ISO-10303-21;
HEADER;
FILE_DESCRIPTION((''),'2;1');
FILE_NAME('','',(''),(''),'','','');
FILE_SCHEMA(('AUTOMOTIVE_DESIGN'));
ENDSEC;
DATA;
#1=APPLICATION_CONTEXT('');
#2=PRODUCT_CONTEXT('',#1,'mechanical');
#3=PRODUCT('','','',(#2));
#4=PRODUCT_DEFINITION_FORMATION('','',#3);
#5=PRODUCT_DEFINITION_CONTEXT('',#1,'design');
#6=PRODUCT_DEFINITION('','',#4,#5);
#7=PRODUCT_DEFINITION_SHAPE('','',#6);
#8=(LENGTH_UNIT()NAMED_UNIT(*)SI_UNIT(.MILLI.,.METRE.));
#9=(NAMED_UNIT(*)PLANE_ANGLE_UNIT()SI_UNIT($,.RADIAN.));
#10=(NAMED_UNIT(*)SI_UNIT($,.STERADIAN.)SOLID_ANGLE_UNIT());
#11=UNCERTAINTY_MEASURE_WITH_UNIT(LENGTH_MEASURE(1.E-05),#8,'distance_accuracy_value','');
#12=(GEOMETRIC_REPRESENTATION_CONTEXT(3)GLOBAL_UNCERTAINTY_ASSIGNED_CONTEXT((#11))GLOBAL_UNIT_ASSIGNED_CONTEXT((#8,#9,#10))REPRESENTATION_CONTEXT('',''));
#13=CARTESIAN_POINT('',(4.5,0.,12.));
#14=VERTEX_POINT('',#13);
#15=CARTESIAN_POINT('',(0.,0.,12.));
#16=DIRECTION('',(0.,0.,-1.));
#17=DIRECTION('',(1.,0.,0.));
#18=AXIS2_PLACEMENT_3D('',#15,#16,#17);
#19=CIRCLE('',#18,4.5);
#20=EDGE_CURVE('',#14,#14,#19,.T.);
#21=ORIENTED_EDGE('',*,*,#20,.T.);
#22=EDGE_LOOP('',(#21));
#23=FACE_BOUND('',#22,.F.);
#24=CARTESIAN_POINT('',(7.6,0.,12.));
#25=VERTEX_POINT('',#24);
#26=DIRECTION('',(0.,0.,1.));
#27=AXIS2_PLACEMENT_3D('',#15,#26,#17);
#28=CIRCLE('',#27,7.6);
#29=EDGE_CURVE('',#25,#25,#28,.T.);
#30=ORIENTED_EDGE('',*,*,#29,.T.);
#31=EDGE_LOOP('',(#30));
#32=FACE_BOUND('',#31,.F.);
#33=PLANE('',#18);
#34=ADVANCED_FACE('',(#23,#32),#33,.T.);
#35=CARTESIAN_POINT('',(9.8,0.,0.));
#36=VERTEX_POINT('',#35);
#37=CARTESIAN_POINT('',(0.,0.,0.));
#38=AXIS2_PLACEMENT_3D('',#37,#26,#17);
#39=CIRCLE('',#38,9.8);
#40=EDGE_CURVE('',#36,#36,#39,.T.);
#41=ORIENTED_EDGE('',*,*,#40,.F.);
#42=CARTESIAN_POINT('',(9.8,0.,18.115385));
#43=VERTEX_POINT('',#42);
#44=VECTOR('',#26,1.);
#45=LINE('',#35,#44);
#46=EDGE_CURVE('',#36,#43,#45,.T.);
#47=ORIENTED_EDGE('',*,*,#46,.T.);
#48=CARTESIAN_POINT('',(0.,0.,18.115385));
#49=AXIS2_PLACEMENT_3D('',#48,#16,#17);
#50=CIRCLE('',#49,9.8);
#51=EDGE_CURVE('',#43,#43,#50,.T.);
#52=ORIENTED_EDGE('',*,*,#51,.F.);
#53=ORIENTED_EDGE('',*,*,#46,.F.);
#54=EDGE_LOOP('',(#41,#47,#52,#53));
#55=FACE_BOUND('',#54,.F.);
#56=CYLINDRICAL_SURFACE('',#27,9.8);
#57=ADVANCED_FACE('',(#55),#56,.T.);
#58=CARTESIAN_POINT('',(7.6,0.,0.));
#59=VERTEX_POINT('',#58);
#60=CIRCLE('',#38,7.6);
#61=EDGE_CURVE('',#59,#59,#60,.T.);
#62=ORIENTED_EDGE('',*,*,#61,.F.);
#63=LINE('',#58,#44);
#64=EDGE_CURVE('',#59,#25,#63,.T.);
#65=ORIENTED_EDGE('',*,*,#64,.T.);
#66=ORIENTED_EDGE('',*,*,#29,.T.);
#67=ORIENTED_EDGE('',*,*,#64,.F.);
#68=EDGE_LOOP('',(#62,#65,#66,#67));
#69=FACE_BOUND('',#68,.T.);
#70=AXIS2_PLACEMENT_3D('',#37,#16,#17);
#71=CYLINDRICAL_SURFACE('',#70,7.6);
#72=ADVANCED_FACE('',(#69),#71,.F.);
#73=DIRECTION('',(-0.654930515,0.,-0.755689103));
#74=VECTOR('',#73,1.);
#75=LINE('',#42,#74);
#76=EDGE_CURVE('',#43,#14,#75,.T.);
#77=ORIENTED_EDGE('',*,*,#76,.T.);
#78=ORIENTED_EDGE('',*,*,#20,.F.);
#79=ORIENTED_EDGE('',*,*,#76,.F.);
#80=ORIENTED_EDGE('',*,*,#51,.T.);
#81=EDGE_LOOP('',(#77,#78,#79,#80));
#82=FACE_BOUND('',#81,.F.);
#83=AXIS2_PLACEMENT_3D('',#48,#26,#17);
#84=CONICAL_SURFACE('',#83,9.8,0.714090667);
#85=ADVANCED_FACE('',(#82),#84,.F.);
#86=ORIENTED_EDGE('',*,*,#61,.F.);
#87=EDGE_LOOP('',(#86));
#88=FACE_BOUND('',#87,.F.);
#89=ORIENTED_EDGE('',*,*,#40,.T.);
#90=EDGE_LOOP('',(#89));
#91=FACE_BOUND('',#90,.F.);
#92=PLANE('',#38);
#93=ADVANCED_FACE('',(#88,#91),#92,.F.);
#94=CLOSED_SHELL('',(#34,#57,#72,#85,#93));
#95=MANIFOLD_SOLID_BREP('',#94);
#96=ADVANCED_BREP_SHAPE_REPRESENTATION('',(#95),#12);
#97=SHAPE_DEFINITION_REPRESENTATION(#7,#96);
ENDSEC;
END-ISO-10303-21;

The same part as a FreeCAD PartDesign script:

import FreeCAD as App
import Part
import Sketcher

V = App.Vector


def add_polygon(sketch, points):
    """Adds a closed chain of lines whose ends are joined by coincident constraints."""
    first, n = sketch.GeometryCount, len(points)
    for a, b in zip(points, points[1:] + points[:1]):
        sketch.addGeometry(Part.LineSegment(App.Vector(*a, 0), App.Vector(*b, 0)), False)
    for i in range(n):
        sketch.addConstraint(Sketcher.Constraint("Coincident", first + i, 2, first + (i + 1) % n, 1))

doc = App.newDocument("Part")
body = doc.addObject("PartDesign::Body", "Body")

sketch1 = doc.addObject("Sketcher::SketchObject", "Sketch")
body.addObject(sketch1)
sketch1.AttachmentSupport = (doc.XY_Plane, [""])
sketch1.MapMode = "FlatFace"
sketch1.addGeometry(Part.Circle(V(0, 0, 0), V(0, 0, 1), 10), False)
sketch1.addGeometry(Part.Circle(V(0, 0, 0), V(0, 0, 1), 8), False)
sketch1.addConstraint(Sketcher.Constraint("Coincident", 0, 3, -1, 1))
sketch1.addConstraint(Sketcher.Constraint("Coincident", 1, 3, -1, 1))
sketch1.addConstraint(Sketcher.Constraint("Diameter", 0, 19.6))
sketch1.addConstraint(Sketcher.Constraint("Diameter", 1, 15.2))
pad1 = doc.addObject("PartDesign::Pad", "Pad")
body.addObject(pad1)
pad1.Profile = sketch1
pad1.Length = 12

sketch2 = doc.addObject("Sketcher::SketchObject", "Sketch001")
body.addObject(sketch2)
sketch2.AttachmentSupport = (doc.XZ_Plane, [""])
sketch2.MapMode = "FlatFace"
add_polygon(sketch2, [(10, 18), (4, 12), (10, 12)])
sketch2.addConstraint(Sketcher.Constraint("Horizontal", 1))
sketch2.addConstraint(Sketcher.Constraint("Vertical", 2))
sketch2.addConstraint(Sketcher.Constraint("DistanceX", 1, 1, 1, 2, 5.3))
sketch2.addConstraint(Sketcher.Constraint("DistanceY", -1, 1, 0, 2, 12.0))
sketch2.addConstraint(Sketcher.Constraint("DistanceX", -1, 1, 0, 2, 4.5))
sketch2.addConstraint(Sketcher.Constraint("Distance", 0, 8.092462))
revolution = doc.addObject("PartDesign::Revolution", "Revolution")
body.addObject(revolution)
revolution.Profile = sketch2
revolution.ReferenceAxis = (sketch2, ["V_Axis"])
revolution.Angle = 360

doc.recompute()
